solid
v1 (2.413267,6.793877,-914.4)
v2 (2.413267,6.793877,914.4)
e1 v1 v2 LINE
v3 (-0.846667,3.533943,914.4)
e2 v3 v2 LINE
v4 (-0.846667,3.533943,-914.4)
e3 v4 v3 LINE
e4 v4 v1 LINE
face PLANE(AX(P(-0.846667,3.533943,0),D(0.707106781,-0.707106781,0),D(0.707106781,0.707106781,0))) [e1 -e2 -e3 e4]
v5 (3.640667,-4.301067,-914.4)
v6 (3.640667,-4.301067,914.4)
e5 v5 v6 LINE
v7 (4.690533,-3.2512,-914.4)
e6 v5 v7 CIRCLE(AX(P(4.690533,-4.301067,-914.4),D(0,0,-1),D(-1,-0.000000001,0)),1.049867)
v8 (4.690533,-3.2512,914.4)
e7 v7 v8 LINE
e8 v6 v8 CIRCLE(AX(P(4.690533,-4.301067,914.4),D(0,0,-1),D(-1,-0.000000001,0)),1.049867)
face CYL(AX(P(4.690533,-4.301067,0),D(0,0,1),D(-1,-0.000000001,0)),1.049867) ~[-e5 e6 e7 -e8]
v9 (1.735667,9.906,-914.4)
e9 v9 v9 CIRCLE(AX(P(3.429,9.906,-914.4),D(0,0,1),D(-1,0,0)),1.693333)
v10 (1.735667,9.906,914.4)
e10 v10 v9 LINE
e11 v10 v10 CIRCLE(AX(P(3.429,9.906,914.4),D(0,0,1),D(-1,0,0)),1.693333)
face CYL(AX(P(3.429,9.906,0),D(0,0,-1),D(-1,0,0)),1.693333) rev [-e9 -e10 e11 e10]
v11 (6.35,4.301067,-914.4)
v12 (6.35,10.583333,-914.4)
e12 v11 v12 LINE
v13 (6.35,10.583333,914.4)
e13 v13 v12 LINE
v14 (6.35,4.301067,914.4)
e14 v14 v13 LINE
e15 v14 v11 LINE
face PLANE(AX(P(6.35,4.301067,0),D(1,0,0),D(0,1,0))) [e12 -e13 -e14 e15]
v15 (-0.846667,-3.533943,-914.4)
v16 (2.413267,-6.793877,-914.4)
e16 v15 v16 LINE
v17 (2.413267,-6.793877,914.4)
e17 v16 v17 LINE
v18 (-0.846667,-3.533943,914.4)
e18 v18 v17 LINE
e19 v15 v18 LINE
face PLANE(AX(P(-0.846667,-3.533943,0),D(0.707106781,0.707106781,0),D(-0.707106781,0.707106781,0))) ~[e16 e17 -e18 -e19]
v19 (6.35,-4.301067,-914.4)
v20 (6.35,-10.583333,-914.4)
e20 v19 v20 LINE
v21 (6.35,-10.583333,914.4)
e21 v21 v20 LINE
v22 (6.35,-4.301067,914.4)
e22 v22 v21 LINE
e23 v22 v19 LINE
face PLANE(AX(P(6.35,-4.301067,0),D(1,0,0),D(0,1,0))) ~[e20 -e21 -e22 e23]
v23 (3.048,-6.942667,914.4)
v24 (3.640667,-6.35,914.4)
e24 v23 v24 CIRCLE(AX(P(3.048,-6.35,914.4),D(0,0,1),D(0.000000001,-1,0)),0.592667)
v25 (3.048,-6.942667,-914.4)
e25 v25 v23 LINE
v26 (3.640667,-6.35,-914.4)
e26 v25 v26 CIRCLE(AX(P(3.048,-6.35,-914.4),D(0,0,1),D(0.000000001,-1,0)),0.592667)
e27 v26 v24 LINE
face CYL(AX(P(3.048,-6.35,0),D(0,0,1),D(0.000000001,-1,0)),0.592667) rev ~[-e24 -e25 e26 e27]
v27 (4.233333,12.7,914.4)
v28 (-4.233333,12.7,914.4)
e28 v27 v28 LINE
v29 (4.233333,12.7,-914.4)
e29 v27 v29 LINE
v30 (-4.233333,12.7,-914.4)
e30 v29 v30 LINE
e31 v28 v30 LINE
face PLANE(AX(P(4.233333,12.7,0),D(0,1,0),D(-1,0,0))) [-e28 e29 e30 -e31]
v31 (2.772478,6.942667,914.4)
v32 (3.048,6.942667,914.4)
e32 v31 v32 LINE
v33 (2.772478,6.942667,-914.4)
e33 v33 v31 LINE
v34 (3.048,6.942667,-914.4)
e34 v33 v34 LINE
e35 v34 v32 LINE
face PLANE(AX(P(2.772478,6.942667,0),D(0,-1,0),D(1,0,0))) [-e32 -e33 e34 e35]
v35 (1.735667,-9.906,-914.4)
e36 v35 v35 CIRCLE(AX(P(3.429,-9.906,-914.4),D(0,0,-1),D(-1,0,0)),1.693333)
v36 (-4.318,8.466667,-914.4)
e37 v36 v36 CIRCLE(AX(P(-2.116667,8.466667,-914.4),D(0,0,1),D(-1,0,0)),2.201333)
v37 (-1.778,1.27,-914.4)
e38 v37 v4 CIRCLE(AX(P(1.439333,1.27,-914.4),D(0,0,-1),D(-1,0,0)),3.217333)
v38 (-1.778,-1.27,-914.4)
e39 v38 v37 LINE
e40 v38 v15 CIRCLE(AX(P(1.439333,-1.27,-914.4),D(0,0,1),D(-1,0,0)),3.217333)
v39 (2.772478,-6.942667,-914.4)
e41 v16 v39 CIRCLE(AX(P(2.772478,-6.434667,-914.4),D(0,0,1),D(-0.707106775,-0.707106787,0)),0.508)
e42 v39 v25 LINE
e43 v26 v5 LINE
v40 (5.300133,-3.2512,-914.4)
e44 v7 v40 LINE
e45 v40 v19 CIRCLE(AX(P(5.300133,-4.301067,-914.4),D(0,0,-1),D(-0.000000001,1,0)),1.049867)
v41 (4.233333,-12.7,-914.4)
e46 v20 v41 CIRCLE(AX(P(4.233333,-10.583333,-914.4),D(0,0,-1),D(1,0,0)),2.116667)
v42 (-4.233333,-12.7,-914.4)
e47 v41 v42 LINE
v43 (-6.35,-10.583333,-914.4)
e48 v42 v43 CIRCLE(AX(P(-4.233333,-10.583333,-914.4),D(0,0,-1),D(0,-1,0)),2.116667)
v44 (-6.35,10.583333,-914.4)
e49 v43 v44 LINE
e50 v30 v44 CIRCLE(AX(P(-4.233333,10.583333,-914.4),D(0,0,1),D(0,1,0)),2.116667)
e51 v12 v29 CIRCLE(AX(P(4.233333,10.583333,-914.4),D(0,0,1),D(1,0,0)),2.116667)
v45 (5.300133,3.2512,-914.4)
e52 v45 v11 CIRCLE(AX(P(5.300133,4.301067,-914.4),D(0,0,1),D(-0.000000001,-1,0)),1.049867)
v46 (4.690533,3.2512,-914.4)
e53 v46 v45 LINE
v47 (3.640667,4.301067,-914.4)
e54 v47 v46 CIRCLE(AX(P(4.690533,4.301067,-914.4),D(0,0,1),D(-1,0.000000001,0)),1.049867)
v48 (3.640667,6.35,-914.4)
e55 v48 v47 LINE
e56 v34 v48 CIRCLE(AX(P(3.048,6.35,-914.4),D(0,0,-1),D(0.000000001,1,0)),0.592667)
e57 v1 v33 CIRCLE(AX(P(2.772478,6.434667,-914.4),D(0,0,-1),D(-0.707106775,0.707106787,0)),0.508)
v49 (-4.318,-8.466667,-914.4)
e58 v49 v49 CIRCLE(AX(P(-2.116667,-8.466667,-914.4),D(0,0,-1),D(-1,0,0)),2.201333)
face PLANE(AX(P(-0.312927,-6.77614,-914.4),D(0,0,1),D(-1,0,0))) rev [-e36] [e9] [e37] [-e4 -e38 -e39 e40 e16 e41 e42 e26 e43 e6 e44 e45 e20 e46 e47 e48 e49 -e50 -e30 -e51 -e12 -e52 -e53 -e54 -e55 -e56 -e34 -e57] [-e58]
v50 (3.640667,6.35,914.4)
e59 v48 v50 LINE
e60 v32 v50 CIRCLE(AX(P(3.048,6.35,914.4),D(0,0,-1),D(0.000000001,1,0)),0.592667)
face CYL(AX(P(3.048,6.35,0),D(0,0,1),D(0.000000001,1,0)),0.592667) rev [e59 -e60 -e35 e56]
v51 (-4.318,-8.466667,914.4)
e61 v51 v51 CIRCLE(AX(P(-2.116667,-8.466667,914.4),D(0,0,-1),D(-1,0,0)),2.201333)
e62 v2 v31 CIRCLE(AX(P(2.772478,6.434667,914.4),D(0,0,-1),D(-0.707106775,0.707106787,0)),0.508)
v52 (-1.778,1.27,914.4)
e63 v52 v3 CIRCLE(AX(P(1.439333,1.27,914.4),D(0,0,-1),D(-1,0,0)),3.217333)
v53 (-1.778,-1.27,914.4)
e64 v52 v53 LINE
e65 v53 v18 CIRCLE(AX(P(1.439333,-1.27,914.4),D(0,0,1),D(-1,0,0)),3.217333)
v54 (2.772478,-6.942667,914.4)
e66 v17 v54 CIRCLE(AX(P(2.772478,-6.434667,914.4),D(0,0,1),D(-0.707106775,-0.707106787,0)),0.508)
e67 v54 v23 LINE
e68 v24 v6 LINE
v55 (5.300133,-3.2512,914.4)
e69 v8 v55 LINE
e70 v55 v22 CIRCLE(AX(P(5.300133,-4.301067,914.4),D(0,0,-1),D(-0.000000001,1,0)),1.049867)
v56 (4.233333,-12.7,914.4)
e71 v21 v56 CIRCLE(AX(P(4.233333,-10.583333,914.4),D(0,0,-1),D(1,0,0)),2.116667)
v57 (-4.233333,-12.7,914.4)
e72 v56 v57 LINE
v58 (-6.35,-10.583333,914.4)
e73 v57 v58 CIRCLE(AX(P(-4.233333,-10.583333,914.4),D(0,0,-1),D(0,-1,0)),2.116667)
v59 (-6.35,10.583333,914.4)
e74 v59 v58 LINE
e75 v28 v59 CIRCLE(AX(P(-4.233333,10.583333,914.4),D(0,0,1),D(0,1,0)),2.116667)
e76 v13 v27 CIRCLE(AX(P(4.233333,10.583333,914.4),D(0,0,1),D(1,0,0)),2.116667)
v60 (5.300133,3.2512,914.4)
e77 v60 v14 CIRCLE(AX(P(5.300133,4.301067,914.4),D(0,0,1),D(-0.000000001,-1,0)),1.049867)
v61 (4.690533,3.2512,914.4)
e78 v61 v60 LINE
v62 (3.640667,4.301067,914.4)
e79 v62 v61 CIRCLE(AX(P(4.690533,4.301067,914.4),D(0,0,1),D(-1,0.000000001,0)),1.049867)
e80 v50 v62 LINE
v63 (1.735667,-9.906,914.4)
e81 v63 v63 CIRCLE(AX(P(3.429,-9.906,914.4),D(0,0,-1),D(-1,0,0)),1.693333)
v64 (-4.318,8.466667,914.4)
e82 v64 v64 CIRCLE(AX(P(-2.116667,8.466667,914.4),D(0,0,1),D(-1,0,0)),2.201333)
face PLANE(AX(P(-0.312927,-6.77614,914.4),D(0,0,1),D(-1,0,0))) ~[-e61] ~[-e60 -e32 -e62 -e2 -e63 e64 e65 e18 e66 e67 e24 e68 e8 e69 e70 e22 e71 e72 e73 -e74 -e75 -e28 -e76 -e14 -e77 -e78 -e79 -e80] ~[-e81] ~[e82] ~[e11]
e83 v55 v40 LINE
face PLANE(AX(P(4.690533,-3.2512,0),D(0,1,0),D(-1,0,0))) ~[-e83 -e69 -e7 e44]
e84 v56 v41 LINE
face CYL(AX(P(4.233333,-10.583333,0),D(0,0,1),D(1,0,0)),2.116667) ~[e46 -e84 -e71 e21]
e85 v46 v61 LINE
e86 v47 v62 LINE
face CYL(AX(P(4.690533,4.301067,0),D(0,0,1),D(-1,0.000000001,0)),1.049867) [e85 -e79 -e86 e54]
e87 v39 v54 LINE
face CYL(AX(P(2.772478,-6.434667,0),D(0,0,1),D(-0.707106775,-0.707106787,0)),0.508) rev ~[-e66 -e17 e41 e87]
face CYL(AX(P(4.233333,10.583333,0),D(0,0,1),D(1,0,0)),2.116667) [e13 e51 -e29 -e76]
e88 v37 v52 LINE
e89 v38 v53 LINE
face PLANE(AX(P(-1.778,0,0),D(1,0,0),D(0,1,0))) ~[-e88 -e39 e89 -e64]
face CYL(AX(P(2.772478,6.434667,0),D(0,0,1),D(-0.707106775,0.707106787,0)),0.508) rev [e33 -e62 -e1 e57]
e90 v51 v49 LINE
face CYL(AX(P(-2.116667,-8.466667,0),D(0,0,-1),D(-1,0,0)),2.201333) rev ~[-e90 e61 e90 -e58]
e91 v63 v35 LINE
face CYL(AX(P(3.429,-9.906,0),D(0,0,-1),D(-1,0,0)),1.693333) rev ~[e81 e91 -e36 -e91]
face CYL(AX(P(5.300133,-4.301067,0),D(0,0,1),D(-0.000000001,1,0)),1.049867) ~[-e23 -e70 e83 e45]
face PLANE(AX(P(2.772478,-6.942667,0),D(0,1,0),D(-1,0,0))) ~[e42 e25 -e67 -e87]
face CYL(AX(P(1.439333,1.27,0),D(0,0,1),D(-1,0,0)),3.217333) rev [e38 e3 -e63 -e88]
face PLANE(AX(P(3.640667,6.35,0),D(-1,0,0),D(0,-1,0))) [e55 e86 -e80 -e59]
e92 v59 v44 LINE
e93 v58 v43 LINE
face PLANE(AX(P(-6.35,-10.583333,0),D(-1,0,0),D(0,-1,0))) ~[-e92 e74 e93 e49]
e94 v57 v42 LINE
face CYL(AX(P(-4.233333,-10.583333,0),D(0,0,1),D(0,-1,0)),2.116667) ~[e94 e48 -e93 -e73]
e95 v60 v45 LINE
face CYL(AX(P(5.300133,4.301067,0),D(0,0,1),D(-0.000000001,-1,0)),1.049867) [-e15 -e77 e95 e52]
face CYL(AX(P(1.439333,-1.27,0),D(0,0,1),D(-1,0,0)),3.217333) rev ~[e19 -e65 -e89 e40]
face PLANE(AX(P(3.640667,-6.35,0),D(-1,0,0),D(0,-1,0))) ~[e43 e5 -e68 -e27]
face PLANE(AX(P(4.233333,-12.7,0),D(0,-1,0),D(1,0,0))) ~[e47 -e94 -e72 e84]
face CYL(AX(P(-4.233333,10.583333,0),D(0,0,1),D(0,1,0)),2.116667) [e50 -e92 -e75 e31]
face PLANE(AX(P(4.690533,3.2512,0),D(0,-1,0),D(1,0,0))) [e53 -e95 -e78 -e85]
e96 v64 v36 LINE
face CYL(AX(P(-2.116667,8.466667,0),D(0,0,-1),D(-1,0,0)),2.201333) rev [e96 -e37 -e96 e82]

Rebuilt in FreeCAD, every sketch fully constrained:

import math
import FreeCAD as App
import Part
import Sketcher
Q = App.Units.Quantity

doc = App.newDocument("Part")
body = doc.addObject("PartDesign::Body", "Body")

# Sketch on XY plane
sketch1 = body.newObject("Sketcher::SketchObject", "Sketch")
sketch1.AttachmentSupport = (doc.getObject("XY_Plane"), [""])
sketch1.MapMode = "FlatFace"
sketch1.addGeometry(Part.LineSegment(App.Vector(-1.778, 0, 0), App.Vector(-1.778, 1.27, 0)), False)
sketch1.addGeometry(Part.ArcOfCircle(Part.Circle(App.Vector(1.439333, 1.27, 0), App.Vector(0, 0, 1), 3.217333), math.radians(135.277754), math.radians(180)), False)
sketch1.addGeometry(Part.LineSegment(App.Vector(-0.846667, 3.533943, 0), App.Vector(2.413267, 6.793877, 0)), False)
sketch1.addGeometry(Part.ArcOfCircle(Part.Circle(App.Vector(2.772478, 6.434667, 0), App.Vector(0, 0, 1), 0.508), math.radians(90), math.radians(135)), False)
sketch1.addGeometry(Part.LineSegment(App.Vector(2.772478, 6.942667, 0), App.Vector(3.048, 6.942667, 0)), False)
sketch1.addGeometry(Part.ArcOfCircle(Part.Circle(App.Vector(3.048, 6.35, 0), App.Vector(0, 0, 1), 0.592667), math.radians(0), math.radians(90)), False)
sketch1.addGeometry(Part.LineSegment(App.Vector(3.640667, 6.35, 0), App.Vector(3.640667, 4.301067, 0)), False)
sketch1.addGeometry(Part.ArcOfCircle(Part.Circle(App.Vector(4.690533, 4.301067, 0), App.Vector(0, 0, 1), 1.049867), math.radians(180), math.radians(270)), False)
sketch1.addGeometry(Part.LineSegment(App.Vector(4.690533, 3.2512, 0), App.Vector(5.300133, 3.2512, 0)), False)
sketch1.addGeometry(Part.ArcOfCircle(Part.Circle(App.Vector(5.300133, 4.301067, 0), App.Vector(0, 0, 1), 1.049867), math.radians(-90), math.radians(0)), False)
sketch1.addGeometry(Part.LineSegment(App.Vector(6.35, 4.301067, 0), App.Vector(6.35, 10.583333, 0)), False)
sketch1.addGeometry(Part.ArcOfCircle(Part.Circle(App.Vector(4.233333, 10.583333, 0), App.Vector(0, 0, 1), 2.116667), math.radians(0), math.radians(90)), False)
sketch1.addGeometry(Part.LineSegment(App.Vector(4.233333, 12.7, 0), App.Vector(-4.233333, 12.7, 0)), False)
sketch1.addGeometry(Part.ArcOfCircle(Part.Circle(App.Vector(-4.233333, 10.583333, 0), App.Vector(0, 0, 1), 2.116667), math.radians(90), math.radians(180)), False)
sketch1.addGeometry(Part.LineSegment(App.Vector(-6.35, 10.583333, 0), App.Vector(-6.35, 0, 0)), False)
sketch1.addGeometry(Part.LineSegment(App.Vector(-6.35, 0, 0), App.Vector(-1.778, 0, 0)), False)
sketch1.addGeometry(Part.Circle(App.Vector(-2.116667, 8.466667, 0), App.Vector(0, 0, 1), 2.201333), False)
sketch1.addGeometry(Part.Circle(App.Vector(3.429, 9.906, 0), App.Vector(0, 0, 1), 1.693333), False)
sketch1.addConstraint(Sketcher.Constraint("Tangent", 0, 2, 1, 2))
sketch1.addConstraint(Sketcher.Constraint("Coincident", 1, 1, 2, 1))
sketch1.addConstraint(Sketcher.Constraint("Tangent", 2, 2, 3, 2))
sketch1.addConstraint(Sketcher.Constraint("Tangent", 3, 1, 4, 1))
sketch1.addConstraint(Sketcher.Constraint("Tangent", 4, 2, 5, 2))
sketch1.addConstraint(Sketcher.Constraint("Tangent", 5, 1, 6, 1))
sketch1.addConstraint(Sketcher.Constraint("Tangent", 6, 2, 7, 1))
sketch1.addConstraint(Sketcher.Constraint("Tangent", 7, 2, 8, 1))
sketch1.addConstraint(Sketcher.Constraint("Tangent", 8, 2, 9, 1))
sketch1.addConstraint(Sketcher.Constraint("Tangent", 9, 2, 10, 1))
sketch1.addConstraint(Sketcher.Constraint("Tangent", 10, 2, 11, 1))
sketch1.addConstraint(Sketcher.Constraint("Tangent", 11, 2, 12, 1))
sketch1.addConstraint(Sketcher.Constraint("Tangent", 12, 2, 13, 1))
sketch1.addConstraint(Sketcher.Constraint("Tangent", 13, 2, 14, 1))
sketch1.addConstraint(Sketcher.Constraint("Coincident", 14, 2, 15, 1))
sketch1.addConstraint(Sketcher.Constraint("Coincident", 15, 2, 0, 1))
sketch1.addConstraint(Sketcher.Constraint("Vertical", 0))
sketch1.addConstraint(Sketcher.Constraint("Horizontal", 4))
sketch1.addConstraint(Sketcher.Constraint("Vertical", 6))
sketch1.addConstraint(Sketcher.Constraint("Horizontal", 8))
sketch1.addConstraint(Sketcher.Constraint("Vertical", 10))
sketch1.addConstraint(Sketcher.Constraint("Horizontal", 12))
sketch1.addConstraint(Sketcher.Constraint("Vertical", 14))
sketch1.addConstraint(Sketcher.Constraint("Horizontal", 15))
sketch1.addConstraint(Sketcher.Constraint("Equal", 7, 9))
sketch1.addConstraint(Sketcher.Constraint("Equal", 11, 13))
sketch1.addConstraint(Sketcher.Constraint("PointOnObject", 14, 2, -1))
sketch1.addConstraint(Sketcher.Constraint("Radius", 3, Q("0.02 in")))
sketch1.addConstraint(Sketcher.Constraint("Angle", 2, Q("45 deg")))
sketch1.addConstraint(Sketcher.Constraint("DistanceX", 15, 1, 15, 2, Q("0.18 in")))
sketch1.addConstraint(Sketcher.Constraint("DistanceY", 0, 1, 0, 2, Q("0.05 in")))
sketch1.addConstraint(Sketcher.Constraint("DistanceY", -1, 1, 11, 2, Q("0.5 in")))
sketch1.addConstraint(Sketcher.Constraint("DistanceY", 1, 3, 5, 3, Q("0.2 in")))
sketch1.addConstraint(Sketcher.Constraint("DistanceX", 8, 1, 8, 2, Q("0.024 in")))
sketch1.addConstraint(Sketcher.Constraint("DistanceX", -1, 1, 5, 3, Q("0.12 in")))
sketch1.addConstraint(Sketcher.Constraint("DistanceY", -1, 1, 17, 3, Q("0.39 in")))
sketch1.addConstraint(Sketcher.Constraint("DistanceX", 0, 2, -1, 1, Q("0.07 in")))
sketch1.addConstraint(Sketcher.Constraint("DistanceX", -1, 1, 9, 2, Q("0.25 in")))
sketch1.addConstraint(Sketcher.Constraint("DistanceX", 1, 3, 11, 3, Q("0.11 in")))
sketch1.addConstraint(Sketcher.Constraint("DistanceY", 3, 3, 16, 3, Q("0.08 in")))
sketch1.addConstraint(Sketcher.Constraint("DistanceX", 16, 3, 11, 3, Q("0.25 in")))
sketch1.addConstraint(Sketcher.Constraint("DistanceX", 1, 1, 1, 3, Q("0.09 in")))
sketch1.addConstraint(Sketcher.Constraint("DistanceX", -1, 1, 17, 3, Q("0.135 in")))
sketch1.addConstraint(Sketcher.Constraint("DistanceY", -1, 1, 7, 2, Q("0.128 in")))
sketch1.addConstraint(Sketcher.Constraint("DistanceY", 7, 3, 3, 3, Q("0.084 in")))
sketch1.addConstraint(Sketcher.Constraint("DistanceX", 1, 3, 7, 3, Q("0.128 in")))
sketch1.addConstraint(Sketcher.Constraint("Diameter", 16, 4.402667))
sketch1.addConstraint(Sketcher.Constraint("Diameter", 17, 3.386667))
pad1 = body.newObject("PartDesign::Pad", "Pad")
pad1.Profile = sketch1
pad1.Length = Q("72 in")
pad1.Midplane = True
body2 = doc.addObject("PartDesign::Body", "Body001")
doc.recompute()

body2.BaseFeature = body
doc.recompute()

mirroring = doc.addObject("Part::Mirroring", "Mirroring")
mirroring.Source = body
mirroring.Base = App.Vector(0, 0, 0)
mirroring.Normal = App.Vector(0, 1, 0)
body3 = doc.addObject("PartDesign::Body", "Body002")
body3.BaseFeature = mirroring
boolean = body2.newObject("PartDesign::Boolean", "Boolean")
boolean.Type = "Fuse"
boolean.addObjects([body3])
doc.recompute()
mirroring.Visibility = False

doc.recompute()
